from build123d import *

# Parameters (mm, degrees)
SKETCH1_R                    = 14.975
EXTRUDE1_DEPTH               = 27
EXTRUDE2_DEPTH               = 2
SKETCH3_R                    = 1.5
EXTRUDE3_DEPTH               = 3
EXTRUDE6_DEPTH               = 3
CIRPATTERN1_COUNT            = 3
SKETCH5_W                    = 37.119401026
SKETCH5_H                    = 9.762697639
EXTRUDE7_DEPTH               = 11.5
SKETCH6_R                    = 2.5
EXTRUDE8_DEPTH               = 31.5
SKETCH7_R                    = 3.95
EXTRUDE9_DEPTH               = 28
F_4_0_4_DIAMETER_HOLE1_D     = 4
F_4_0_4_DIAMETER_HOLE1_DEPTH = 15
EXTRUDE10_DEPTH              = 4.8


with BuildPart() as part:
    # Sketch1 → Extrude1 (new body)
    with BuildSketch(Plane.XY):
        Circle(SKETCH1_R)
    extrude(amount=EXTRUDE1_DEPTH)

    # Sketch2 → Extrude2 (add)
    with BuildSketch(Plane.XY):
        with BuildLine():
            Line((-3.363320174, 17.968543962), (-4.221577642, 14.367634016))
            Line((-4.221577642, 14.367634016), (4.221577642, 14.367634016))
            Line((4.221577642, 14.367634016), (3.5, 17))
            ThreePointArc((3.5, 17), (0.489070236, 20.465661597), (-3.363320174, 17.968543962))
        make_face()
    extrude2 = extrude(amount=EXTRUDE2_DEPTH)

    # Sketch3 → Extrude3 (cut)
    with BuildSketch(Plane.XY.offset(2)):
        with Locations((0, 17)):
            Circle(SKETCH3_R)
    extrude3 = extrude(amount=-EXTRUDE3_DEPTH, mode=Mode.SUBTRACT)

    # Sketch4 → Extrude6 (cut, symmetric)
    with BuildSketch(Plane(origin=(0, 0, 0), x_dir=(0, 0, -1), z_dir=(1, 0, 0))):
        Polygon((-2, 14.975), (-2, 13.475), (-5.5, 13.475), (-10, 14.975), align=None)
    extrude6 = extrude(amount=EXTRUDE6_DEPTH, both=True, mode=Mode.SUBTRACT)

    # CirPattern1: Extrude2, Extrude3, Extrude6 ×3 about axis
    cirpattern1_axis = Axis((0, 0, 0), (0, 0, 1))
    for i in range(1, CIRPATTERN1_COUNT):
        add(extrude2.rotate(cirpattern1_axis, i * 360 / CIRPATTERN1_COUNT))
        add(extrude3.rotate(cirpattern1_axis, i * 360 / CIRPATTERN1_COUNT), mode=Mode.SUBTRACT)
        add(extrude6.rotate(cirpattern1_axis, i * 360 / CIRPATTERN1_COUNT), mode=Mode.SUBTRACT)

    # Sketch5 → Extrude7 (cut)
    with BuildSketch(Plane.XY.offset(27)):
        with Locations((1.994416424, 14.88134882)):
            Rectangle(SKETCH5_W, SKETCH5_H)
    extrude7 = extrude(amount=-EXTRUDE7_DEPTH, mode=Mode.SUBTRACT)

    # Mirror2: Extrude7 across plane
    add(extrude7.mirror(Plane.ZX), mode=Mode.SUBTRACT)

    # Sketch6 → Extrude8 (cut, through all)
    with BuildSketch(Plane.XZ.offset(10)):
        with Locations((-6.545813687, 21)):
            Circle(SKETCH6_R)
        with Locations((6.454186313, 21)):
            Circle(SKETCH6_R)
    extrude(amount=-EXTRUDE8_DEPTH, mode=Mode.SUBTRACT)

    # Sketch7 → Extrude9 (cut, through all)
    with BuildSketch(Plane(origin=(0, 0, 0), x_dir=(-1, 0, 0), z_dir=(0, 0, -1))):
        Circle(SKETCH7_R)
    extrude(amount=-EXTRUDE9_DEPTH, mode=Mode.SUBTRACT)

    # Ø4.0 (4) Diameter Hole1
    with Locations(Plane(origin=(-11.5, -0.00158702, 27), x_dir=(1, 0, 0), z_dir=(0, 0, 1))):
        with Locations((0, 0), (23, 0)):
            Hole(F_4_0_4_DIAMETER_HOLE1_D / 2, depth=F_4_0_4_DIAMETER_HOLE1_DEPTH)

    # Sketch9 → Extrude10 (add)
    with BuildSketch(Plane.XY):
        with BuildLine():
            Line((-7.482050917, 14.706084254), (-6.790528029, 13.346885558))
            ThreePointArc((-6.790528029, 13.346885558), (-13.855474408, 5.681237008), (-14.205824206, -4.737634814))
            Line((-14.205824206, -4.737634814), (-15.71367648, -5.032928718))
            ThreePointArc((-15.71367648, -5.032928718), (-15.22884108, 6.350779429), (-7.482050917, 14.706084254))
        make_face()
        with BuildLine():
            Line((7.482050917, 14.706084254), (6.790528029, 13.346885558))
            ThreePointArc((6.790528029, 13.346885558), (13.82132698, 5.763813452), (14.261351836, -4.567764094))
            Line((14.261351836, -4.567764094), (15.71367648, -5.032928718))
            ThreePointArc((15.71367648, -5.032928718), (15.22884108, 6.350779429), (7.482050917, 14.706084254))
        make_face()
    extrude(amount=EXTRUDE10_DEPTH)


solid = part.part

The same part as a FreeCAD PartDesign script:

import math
import FreeCAD as App
import Part
import Sketcher

V = App.Vector


def add_polygon(sketch, points):
    """Adds a closed chain of lines whose ends are joined by coincident constraints."""
    first, n = sketch.GeometryCount, len(points)
    for a, b in zip(points, points[1:] + points[:1]):
        sketch.addGeometry(Part.LineSegment(App.Vector(*a, 0), App.Vector(*b, 0)), False)
    for i in range(n):
        sketch.addConstraint(Sketcher.Constraint("Coincident", first + i, 2, first + (i + 1) % n, 1))

doc = App.newDocument("Part")
body = doc.addObject("PartDesign::Body", "Body")

sketch1 = body.newObject("Sketcher::SketchObject", "Sketch")
sketch1.AttachmentSupport = (doc.getObject("XY_Plane"), [""])
sketch1.MapMode = "FlatFace"
sketch1.addGeometry(Part.Circle(V(0, 0, 0), V(0, 0, 1), 15), False)
sketch1.addConstraint(Sketcher.Constraint("Coincident", 0, 3, -1, 1))
sketch1.addConstraint(Sketcher.Constraint("Diameter", 0, 29.95))
pad1 = body.newObject("PartDesign::Pad", "Pad")
pad1.Profile = sketch1
pad1.Length = 27

sketch2 = body.newObject("Sketcher::SketchObject", "Sketch001")
sketch2.AttachmentSupport = (doc.getObject("XY_Plane"), [""])
sketch2.MapMode = "FlatFace"
sketch2.addGeometry(Part.LineSegment(V(-3.4, 18, 0), V(-4.2, 14.4, 0)), False)
sketch2.addGeometry(Part.LineSegment(V(-4.2, 14.4, 0), V(4.2, 14.4, 0)), False)
sketch2.addGeometry(Part.LineSegment(V(4.2, 14.4, 0), V(3.5, 17, 0)), False)
sketch2.addGeometry(Part.ArcOfCircle(Part.Circle(V(0, 17, 0), V(0, 0, 1), 3.5), math.radians(0), math.radians(164)), False)
sketch2.addConstraint(Sketcher.Constraint("Coincident", 0, 2, 1, 1))
sketch2.addConstraint(Sketcher.Constraint("Coincident", 1, 2, 2, 1))
sketch2.addConstraint(Sketcher.Constraint("Coincident", 2, 2, 3, 1))
sketch2.addConstraint(Sketcher.Constraint("Coincident", 3, 2, 0, 1))
sketch2.addConstraint(Sketcher.Constraint("Horizontal", 1))
sketch2.addConstraint(Sketcher.Constraint("PointOnObject", 3, 3, -2))
sketch2.addConstraint(Sketcher.Constraint("Horizontal", 3, 3, 2, 2))
sketch2.addConstraint(Sketcher.Constraint("Radius", 3, 3.5))
sketch2.addConstraint(Sketcher.Constraint("DistanceY", -1, 1, 3, 3, 17.0))
sketch2.addConstraint(Sketcher.Constraint("DistanceX", 1, 1, 1, 2, 8.443155))
sketch2.addConstraint(Sketcher.Constraint("DistanceX", 3, 2, -1, 1, 3.36332))
sketch2.addConstraint(Sketcher.Constraint("DistanceY", 0, 2, 3, 2, 3.60091))
sketch2.addConstraint(Sketcher.Constraint("Distance", 0, 3.701778))
pad2 = body.newObject("PartDesign::Pad", "Pad001")
pad2.Profile = sketch2
pad2.Length = 2

sketch3 = body.newObject("Sketcher::SketchObject", "Sketch002")
sketch3.AttachmentSupport = (doc.getObject("XY_Plane"), [""])
sketch3.MapMode = "FlatFace"
sketch3.AttachmentOffset = App.Placement(V(0, 0, 2), App.Rotation())
sketch3.addGeometry(Part.Circle(V(0, 17, 0), V(0, 0, 1), 1.5), False)
sketch3.addConstraint(Sketcher.Constraint("PointOnObject", 0, 3, -2))
sketch3.addConstraint(Sketcher.Constraint("Diameter", 0, 3.0))
sketch3.addConstraint(Sketcher.Constraint("DistanceY", -1, 1, 0, 3, 17.0))
pocket1 = body.newObject("PartDesign::Pocket", "Pocket")
pocket1.Profile = sketch3
pocket1.Length = 3

sketch4 = body.newObject("Sketcher::SketchObject", "Sketch003")
sketch4.AttachmentSupport = (doc.getObject("YZ_Plane"), [""])
sketch4.MapMode = "FlatFace"
add_polygon(sketch4, [(13.5, 2), (15, 2), (15, 10), (13.5, 5.5)])
sketch4.addConstraint(Sketcher.Constraint("Horizontal", 0))
sketch4.addConstraint(Sketcher.Constraint("Vertical", 1))
sketch4.addConstraint(Sketcher.Constraint("Vertical", 3))
sketch4.addConstraint(Sketcher.Constraint("DistanceY", 1, 1, 1, 2, 8.0))
sketch4.addConstraint(Sketcher.Constraint("DistanceX", 0, 1, 0, 2, 1.5))
sketch4.addConstraint(Sketcher.Constraint("DistanceY", 3, 2, 3, 1, 3.5))
sketch4.addConstraint(Sketcher.Constraint("DistanceY", -1, 1, 0, 2, 2.0))
sketch4.addConstraint(Sketcher.Constraint("DistanceX", -1, 1, 0, 2, 14.975))
pocket2 = body.newObject("PartDesign::Pocket", "Pocket001")
pocket2.Profile = sketch4
pocket2.Length = 6
pocket2.Midplane = True
doc.recompute()

polarpattern = body.newObject("PartDesign::PolarPattern", "PolarPattern")
polarpattern.Originals = [pad2, pocket1, pocket2]
polarpattern.Axis = (doc.getObject("Z_Axis"), [""])
polarpattern.Angle = 360
polarpattern.Occurrences = 3
body.Tip = polarpattern

sketch5 = body.newObject("Sketcher::SketchObject", "Sketch004")
sketch5.AttachmentSupport = (doc.getObject("XY_Plane"), [""])
sketch5.MapMode = "FlatFace"
sketch5.AttachmentOffset = App.Placement(V(0, 0, 27), App.Rotation())
add_polygon(sketch5, [(-17, 20), (-17, 10), (21, 10), (21, 20)])
sketch5.addConstraint(Sketcher.Constraint("Vertical", 0))
sketch5.addConstraint(Sketcher.Constraint("Horizontal", 1))
sketch5.addConstraint(Sketcher.Constraint("Vertical", 2))
sketch5.addConstraint(Sketcher.Constraint("Horizontal", 3))
sketch5.addConstraint(Sketcher.Constraint("DistanceY", -1, 1, 0, 2, 10.0))
sketch5.addConstraint(Sketcher.Constraint("DistanceX", 1, 1, 1, 2, 37.119401))
sketch5.addConstraint(Sketcher.Constraint("DistanceY", 0, 2, 0, 1, 9.762698))
sketch5.addConstraint(Sketcher.Constraint("DistanceX", 0, 2, -1, 1, 16.565284))
pocket3 = body.newObject("PartDesign::Pocket", "Pocket002")
pocket3.Profile = sketch5
pocket3.Length = 11.5
doc.recompute()

mirrored = body.newObject("PartDesign::Mirrored", "Mirrored")
mirrored.Originals = [pocket3]
mirrored.MirrorPlane = (doc.getObject("XZ_Plane"), [""])
body.Tip = mirrored

sketch6 = body.newObject("Sketcher::SketchObject", "Sketch005")
sketch6.AttachmentSupport = (doc.getObject("XZ_Plane"), [""])
sketch6.MapMode = "FlatFace"
sketch6.AttachmentOffset = App.Placement(V(0, 0, 10), App.Rotation())
sketch6.addGeometry(Part.Circle(V(-6.5, 21, 0), V(0, 0, 1), 2.5), False)
sketch6.addGeometry(Part.Circle(V(6.5, 21, 0), V(0, 0, 1), 2.5), False)
sketch6.addConstraint(Sketcher.Constraint("Equal", 0, 1))
sketch6.addConstraint(Sketcher.Constraint("Horizontal", 0, 3, 1, 3))
sketch6.addConstraint(Sketcher.Constraint("Diameter", 0, 5.0))
sketch6.addConstraint(Sketcher.Constraint("DistanceY", -1, 1, 0, 3, 21.0))
sketch6.addConstraint(Sketcher.Constraint("DistanceX", 0, 3, 1, 3, 13.0))
sketch6.addConstraint(Sketcher.Constraint("DistanceX", 0, 3, -1, 1, 6.545814))
pocket4 = body.newObject("PartDesign::Pocket", "Pocket003")
pocket4.Profile = sketch6
pocket4.Type = "ThroughAll"

sketch7 = body.newObject("Sketcher::SketchObject", "Sketch006")
sketch7.AttachmentSupport = (doc.getObject("XY_Plane"), [""])
sketch7.MapMode = "FlatFace"
sketch7.addGeometry(Part.Circle(V(0, 0, 0), V(0, 0, 1), 4), False)
sketch7.addConstraint(Sketcher.Constraint("Coincident", 0, 3, -1, 1))
sketch7.addConstraint(Sketcher.Constraint("Diameter", 0, 7.9))
pocket5 = body.newObject("PartDesign::Pocket", "Pocket004")
pocket5.Profile = sketch7
pocket5.Type = "ThroughAll"
pocket5.Reversed = True

sketch8 = body.newObject("Sketcher::SketchObject", "Sketch007")
sketch8.AttachmentSupport = (doc.getObject("XY_Plane"), [""])
sketch8.MapMode = "FlatFace"
sketch8.AttachmentOffset = App.Placement(V(0, 0, 27), App.Rotation())
sketch8.addGeometry(Part.Circle(V(-11.5, 0, 0), V(0, 0, 1), 2), False)
sketch8.addGeometry(Part.Circle(V(11.5, 0, 0), V(0, 0, 1), 2), False)
sketch8.addConstraint(Sketcher.Constraint("Equal", 0, 1))
sketch8.addConstraint(Sketcher.Constraint("Symmetric", 0, 3, 1, 3, -2))
sketch8.addConstraint(Sketcher.Constraint("Diameter", 0, 4.0))
sketch8.addConstraint(Sketcher.Constraint("DistanceX", 0, 3, 1, 3, 23.0))
sketch8.addConstraint(Sketcher.Constraint("DistanceY", 0, 3, -1, 1, 0.001587))
doc.recompute()
hole = body.newObject("PartDesign::Hole", "Hole")
hole.Profile = sketch8
hole.ThreadType = "None"
hole.Diameter = 4
hole.DepthType = "Dimension"
hole.Depth = 15
hole.DrillPoint = "Flat"

sketch9 = body.newObject("Sketcher::SketchObject", "Sketch008")
sketch9.AttachmentSupport = (doc.getObject("XY_Plane"), [""])
sketch9.MapMode = "FlatFace"
sketch9.addGeometry(Part.LineSegment(V(-6.8, 13.3, 0), V(-7.5, 14.7, 0)), False)
sketch9.addGeometry(Part.ArcOfCircle(Part.Circle(V(0, 0, 0), V(0, 0, 1), 16.5), math.radians(117), math.radians(198)), False)
sketch9.addGeometry(Part.LineSegment(V(-15.7, -5, 0), V(-14.2, -4.7, 0)), False)
sketch9.addGeometry(Part.ArcOfCircle(Part.Circle(V(0, 0, 0), V(0, 0, 1), 15), math.radians(117), math.radians(198)), False)
sketch9.addGeometry(Part.LineSegment(V(7.5, 14.7, 0), V(6.8, 13.3, 0)), False)
sketch9.addGeometry(Part.ArcOfCircle(Part.Circle(V(0, 0, 0), V(0, 0, 1), 15), math.radians(-18), math.radians(63)), False)
sketch9.addGeometry(Part.LineSegment(V(14.3, -4.6, 0), V(15.7, -5, 0)), False)
sketch9.addGeometry(Part.ArcOfCircle(Part.Circle(V(0, 0, 0), V(0, 0, 1), 16.5), math.radians(-18), math.radians(63)), False)
sketch9.addConstraint(Sketcher.Constraint("Coincident", 0, 2, 1, 1))
sketch9.addConstraint(Sketcher.Constraint("Coincident", 1, 2, 2, 1))
sketch9.addConstraint(Sketcher.Constraint("Coincident", 2, 2, 3, 2))
sketch9.addConstraint(Sketcher.Constraint("Coincident", 3, 1, 0, 1))
sketch9.addConstraint(Sketcher.Constraint("Coincident", 4, 2, 5, 2))
sketch9.addConstraint(Sketcher.Constraint("Coincident", 5, 1, 6, 1))
sketch9.addConstraint(Sketcher.Constraint("Coincident", 6, 2, 7, 1))
sketch9.addConstraint(Sketcher.Constraint("Coincident", 7, 2, 4, 1))
sketch9.addConstraint(Sketcher.Constraint("Coincident", 1, 3, -1, 1))
sketch9.addConstraint(Sketcher.Constraint("Coincident", 3, 3, -1, 1))
sketch9.addConstraint(Sketcher.Constraint("Coincident", 5, 3, -1, 1))
sketch9.addConstraint(Sketcher.Constraint("Coincident", 7, 3, -1, 1))
sketch9.addConstraint(Sketcher.Constraint("Equal", 3, 5))
sketch9.addConstraint(Sketcher.Constraint("Equal", 1, 7))
sketch9.addConstraint(Sketcher.Constraint("Horizontal", 3, 1, 4, 2))
sketch9.addConstraint(Sketcher.Constraint("Horizontal", 1, 2, 6, 2))
sketch9.addConstraint(Sketcher.Constraint("Horizontal", 0, 2, 7, 2))
sketch9.addConstraint(Sketcher.Constraint("Radius", 1, 16.5))
sketch9.addConstraint(Sketcher.Constraint("Radius", 3, 14.975))
sketch9.addConstraint(Sketcher.Constraint("DistanceY", 3, 1, 0, 2, 1.359199))
sketch9.addConstraint(Sketcher.Constraint("DistanceX", 0, 2, 7, 2, 14.964102))
sketch9.addConstraint(Sketcher.Constraint("DistanceY", 1, 2, -1, 1, 5.032929))
sketch9.addConstraint(Sketcher.Constraint("DistanceX", -1, 1, 5, 1, 14.261352))
sketch9.addConstraint(Sketcher.Constraint("Distance", 2, 1.536495))
pad3 = body.newObject("PartDesign::Pad", "Pad002")
pad3.Profile = sketch9
pad3.Length = 4.8

doc.recompute()
